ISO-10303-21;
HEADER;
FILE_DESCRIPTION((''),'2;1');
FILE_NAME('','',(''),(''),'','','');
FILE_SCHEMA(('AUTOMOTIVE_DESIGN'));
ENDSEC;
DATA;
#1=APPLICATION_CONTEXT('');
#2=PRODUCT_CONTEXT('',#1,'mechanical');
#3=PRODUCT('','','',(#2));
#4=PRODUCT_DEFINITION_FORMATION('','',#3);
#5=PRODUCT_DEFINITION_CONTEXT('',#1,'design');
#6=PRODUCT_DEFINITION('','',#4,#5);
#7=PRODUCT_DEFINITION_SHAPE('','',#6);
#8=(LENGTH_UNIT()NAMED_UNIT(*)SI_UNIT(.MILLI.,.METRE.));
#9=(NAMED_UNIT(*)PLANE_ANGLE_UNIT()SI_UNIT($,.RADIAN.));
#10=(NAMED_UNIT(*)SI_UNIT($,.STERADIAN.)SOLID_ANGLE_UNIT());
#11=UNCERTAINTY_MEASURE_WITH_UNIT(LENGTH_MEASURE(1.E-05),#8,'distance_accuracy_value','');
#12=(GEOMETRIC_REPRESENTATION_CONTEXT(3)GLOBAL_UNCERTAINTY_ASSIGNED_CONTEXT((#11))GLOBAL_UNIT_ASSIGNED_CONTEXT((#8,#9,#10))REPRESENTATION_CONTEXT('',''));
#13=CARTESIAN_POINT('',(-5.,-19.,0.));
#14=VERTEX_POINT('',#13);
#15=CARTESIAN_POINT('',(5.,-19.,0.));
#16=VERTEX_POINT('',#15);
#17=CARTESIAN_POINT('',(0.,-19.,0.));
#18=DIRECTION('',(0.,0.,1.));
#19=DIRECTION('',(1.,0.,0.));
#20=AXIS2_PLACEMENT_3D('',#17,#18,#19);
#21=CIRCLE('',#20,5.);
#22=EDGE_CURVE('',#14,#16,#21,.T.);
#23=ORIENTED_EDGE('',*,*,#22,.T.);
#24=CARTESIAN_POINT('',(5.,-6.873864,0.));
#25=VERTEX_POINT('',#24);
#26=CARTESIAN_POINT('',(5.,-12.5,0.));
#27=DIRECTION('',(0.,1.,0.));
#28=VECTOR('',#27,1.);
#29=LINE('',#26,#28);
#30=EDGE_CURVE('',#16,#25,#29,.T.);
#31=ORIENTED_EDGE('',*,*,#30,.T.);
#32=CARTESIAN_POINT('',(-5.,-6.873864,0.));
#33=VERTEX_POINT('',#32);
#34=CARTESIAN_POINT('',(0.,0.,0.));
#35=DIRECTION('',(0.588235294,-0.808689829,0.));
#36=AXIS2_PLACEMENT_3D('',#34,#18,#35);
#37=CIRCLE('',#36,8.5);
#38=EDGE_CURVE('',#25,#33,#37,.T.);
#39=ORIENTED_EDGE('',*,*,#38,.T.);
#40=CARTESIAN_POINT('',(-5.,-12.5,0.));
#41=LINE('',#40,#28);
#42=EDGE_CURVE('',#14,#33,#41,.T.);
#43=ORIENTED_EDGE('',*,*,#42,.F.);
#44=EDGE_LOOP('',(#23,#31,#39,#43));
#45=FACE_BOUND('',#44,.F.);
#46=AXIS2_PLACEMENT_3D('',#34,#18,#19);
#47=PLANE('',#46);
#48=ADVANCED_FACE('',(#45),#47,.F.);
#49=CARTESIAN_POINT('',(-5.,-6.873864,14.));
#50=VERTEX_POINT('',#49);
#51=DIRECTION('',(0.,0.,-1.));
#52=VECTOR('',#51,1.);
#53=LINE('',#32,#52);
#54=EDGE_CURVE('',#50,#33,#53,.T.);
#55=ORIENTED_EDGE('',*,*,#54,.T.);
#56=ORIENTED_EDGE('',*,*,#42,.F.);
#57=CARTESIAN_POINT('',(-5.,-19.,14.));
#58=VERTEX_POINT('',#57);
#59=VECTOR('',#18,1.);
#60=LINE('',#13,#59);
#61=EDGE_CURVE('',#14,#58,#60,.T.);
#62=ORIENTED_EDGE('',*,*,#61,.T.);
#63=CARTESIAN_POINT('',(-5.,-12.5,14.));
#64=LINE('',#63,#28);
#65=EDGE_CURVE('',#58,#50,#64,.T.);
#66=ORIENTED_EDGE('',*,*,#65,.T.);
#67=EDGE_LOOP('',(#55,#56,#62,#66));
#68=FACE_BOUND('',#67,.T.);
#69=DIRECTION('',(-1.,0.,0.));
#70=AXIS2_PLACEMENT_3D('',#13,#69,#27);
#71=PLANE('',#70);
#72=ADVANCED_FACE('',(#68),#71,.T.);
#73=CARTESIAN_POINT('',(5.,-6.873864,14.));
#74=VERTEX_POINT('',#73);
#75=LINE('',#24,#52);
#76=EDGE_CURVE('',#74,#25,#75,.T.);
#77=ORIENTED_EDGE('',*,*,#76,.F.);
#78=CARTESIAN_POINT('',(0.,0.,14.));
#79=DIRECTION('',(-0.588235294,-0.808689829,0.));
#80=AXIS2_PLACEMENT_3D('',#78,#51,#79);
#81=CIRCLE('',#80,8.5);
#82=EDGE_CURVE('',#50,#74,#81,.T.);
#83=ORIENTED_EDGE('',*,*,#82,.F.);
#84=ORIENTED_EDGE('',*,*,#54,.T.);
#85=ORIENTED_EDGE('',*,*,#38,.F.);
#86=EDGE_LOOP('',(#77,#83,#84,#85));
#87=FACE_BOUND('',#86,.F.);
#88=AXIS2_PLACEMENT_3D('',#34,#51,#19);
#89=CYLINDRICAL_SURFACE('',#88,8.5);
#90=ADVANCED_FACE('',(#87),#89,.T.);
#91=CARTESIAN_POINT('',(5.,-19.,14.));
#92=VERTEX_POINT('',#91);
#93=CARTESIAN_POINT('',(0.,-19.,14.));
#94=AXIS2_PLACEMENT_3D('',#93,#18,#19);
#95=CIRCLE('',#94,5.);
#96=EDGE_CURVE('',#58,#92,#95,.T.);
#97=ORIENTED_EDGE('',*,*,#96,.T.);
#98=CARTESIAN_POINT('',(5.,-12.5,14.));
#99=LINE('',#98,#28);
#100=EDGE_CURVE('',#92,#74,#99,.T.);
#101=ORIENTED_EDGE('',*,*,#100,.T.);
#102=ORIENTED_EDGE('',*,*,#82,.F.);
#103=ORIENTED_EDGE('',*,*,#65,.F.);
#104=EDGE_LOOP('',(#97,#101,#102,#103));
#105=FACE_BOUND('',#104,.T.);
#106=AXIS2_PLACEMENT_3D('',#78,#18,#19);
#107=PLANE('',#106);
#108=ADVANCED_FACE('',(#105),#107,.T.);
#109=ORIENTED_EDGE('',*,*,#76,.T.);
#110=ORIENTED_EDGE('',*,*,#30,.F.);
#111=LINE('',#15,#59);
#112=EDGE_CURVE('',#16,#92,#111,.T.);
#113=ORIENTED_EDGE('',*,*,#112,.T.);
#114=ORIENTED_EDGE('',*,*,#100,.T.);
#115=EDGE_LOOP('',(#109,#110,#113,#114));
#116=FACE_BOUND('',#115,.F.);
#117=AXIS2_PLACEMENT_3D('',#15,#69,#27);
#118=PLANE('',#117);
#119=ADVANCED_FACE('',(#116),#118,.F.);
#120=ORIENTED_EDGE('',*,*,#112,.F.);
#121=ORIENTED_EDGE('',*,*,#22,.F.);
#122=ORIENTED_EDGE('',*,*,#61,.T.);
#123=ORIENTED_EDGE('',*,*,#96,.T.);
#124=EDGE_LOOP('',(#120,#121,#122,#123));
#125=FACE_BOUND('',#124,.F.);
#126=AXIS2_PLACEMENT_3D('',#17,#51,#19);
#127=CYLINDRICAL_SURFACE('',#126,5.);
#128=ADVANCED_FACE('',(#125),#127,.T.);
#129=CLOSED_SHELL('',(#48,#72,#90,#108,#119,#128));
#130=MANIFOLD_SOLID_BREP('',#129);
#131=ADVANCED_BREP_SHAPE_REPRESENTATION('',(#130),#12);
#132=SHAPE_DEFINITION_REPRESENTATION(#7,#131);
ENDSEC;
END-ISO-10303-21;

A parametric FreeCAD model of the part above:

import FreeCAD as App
import Part
import Sketcher
from FreeCAD import Vector
Q = App.Units.Quantity


def add_polygon(sketch, points):
    """Adds a closed chain of lines whose ends are joined by coincident constraints."""
    first, n = sketch.GeometryCount, len(points)
    for a, b in zip(points, points[1:] + points[:1]):
        sketch.addGeometry(Part.LineSegment(App.Vector(*a, 0), App.Vector(*b, 0)), False)
    for i in range(n):
        sketch.addConstraint(Sketcher.Constraint("Coincident", first + i, 2, first + (i + 1) % n, 1))

doc = App.newDocument("Part")
body = doc.addObject("PartDesign::Body", "Body")

# Sketch on XY plane
sketch1 = body.newObject("Sketcher::SketchObject", "Sketch")
sketch1.AttachmentSupport = (doc.getObject("XY_Plane"), [""])
sketch1.MapMode = "FlatFace"
sketch1.addGeometry(Part.Circle(Vector(0, -11, 0), Vector(0, 0, 1), 5), False)
sketch1.addConstraint(Sketcher.Constraint("PointOnObject", 0, 3, -2))
sketch1.addConstraint(Sketcher.Constraint("Diameter", 0, Q("10 mm")))
sketch1.addConstraint(Sketcher.Constraint("DistanceY", 0, 3, -1, 1, Q("11 mm")))
pad1 = body.newObject("PartDesign::Pad", "Pad")
pad1.Profile = sketch1
pad1.Length = 14
body2 = doc.addObject("PartDesign::Body", "Body001")

# Sketch on XY plane
sketch2 = body2.newObject("Sketcher::SketchObject", "Sketch001")
sketch2.AttachmentSupport = (doc.getObject("XY_Plane001"), [""])
sketch2.MapMode = "FlatFace"
sketch2.addGeometry(Part.Circle(Vector(0, 8, 0), Vector(0, 0, 1), 8), False)
sketch2.addConstraint(Sketcher.Constraint("PointOnObject", 0, 3, -2))
sketch2.addConstraint(Sketcher.Constraint("Diameter", 0, Q("17 mm")))
sketch2.addConstraint(Sketcher.Constraint("DistanceY", -1, 1, 0, 3, Q("8 mm")))
pad2 = body2.newObject("PartDesign::Pad", "Pad001")
pad2.Profile = sketch2
pad2.Length = 14
body3 = doc.addObject("PartDesign::Body", "Body002")

# Sketch on XY plane
sketch3 = body3.newObject("Sketcher::SketchObject", "Sketch002")
sketch3.AttachmentSupport = (doc.getObject("XY_Plane002"), [""])
sketch3.MapMode = "FlatFace"
add_polygon(sketch3, [(-5, 2), (-5, -11), (5, -11), (5, 2)])  # lines 0-3
sketch3.addConstraint(Sketcher.Constraint("Vertical", 0))
sketch3.addConstraint(Sketcher.Constraint("Horizontal", 1))
sketch3.addConstraint(Sketcher.Constraint("Vertical", 2))
sketch3.addConstraint(Sketcher.Constraint("Horizontal", 3))
sketch3.addConstraint(Sketcher.Constraint("DistanceX", 1, 1, 1, 2, Q("10 mm")))
sketch3.addConstraint(Sketcher.Constraint("DistanceY", 0, 2, 0, 1, Q("13 mm")))
sketch3.addConstraint(Sketcher.Constraint("DistanceX", 0, 2, -1, 1, Q("5 mm")))
sketch3.addConstraint(Sketcher.Constraint("DistanceY", 0, 2, -1, 1, Q("11 mm")))
pad3 = body3.newObject("PartDesign::Pad", "Pad002")
pad3.Profile = sketch3
pad3.Length = 14
doc.recompute()

boolean = body3.newObject("PartDesign::Boolean", "Boolean")
boolean.Type = "Fuse"
boolean.addObjects([body])
doc.recompute()

boolean2 = body3.newObject("PartDesign::Boolean", "Boolean001")
boolean2.Type = "Fuse"
boolean2.addObjects([body2])
body4 = doc.addObject("PartDesign::Body", "Body003")
doc.recompute()

body3.Placement = App.Placement(Vector(0, -8, 0), App.Rotation(Vector(0, 0, 1), 0))
boolean3 = body4.newObject("PartDesign::Boolean", "Boolean002")
boolean3.Type = "Fuse"
boolean3.addObjects([body3])

doc.recompute()
